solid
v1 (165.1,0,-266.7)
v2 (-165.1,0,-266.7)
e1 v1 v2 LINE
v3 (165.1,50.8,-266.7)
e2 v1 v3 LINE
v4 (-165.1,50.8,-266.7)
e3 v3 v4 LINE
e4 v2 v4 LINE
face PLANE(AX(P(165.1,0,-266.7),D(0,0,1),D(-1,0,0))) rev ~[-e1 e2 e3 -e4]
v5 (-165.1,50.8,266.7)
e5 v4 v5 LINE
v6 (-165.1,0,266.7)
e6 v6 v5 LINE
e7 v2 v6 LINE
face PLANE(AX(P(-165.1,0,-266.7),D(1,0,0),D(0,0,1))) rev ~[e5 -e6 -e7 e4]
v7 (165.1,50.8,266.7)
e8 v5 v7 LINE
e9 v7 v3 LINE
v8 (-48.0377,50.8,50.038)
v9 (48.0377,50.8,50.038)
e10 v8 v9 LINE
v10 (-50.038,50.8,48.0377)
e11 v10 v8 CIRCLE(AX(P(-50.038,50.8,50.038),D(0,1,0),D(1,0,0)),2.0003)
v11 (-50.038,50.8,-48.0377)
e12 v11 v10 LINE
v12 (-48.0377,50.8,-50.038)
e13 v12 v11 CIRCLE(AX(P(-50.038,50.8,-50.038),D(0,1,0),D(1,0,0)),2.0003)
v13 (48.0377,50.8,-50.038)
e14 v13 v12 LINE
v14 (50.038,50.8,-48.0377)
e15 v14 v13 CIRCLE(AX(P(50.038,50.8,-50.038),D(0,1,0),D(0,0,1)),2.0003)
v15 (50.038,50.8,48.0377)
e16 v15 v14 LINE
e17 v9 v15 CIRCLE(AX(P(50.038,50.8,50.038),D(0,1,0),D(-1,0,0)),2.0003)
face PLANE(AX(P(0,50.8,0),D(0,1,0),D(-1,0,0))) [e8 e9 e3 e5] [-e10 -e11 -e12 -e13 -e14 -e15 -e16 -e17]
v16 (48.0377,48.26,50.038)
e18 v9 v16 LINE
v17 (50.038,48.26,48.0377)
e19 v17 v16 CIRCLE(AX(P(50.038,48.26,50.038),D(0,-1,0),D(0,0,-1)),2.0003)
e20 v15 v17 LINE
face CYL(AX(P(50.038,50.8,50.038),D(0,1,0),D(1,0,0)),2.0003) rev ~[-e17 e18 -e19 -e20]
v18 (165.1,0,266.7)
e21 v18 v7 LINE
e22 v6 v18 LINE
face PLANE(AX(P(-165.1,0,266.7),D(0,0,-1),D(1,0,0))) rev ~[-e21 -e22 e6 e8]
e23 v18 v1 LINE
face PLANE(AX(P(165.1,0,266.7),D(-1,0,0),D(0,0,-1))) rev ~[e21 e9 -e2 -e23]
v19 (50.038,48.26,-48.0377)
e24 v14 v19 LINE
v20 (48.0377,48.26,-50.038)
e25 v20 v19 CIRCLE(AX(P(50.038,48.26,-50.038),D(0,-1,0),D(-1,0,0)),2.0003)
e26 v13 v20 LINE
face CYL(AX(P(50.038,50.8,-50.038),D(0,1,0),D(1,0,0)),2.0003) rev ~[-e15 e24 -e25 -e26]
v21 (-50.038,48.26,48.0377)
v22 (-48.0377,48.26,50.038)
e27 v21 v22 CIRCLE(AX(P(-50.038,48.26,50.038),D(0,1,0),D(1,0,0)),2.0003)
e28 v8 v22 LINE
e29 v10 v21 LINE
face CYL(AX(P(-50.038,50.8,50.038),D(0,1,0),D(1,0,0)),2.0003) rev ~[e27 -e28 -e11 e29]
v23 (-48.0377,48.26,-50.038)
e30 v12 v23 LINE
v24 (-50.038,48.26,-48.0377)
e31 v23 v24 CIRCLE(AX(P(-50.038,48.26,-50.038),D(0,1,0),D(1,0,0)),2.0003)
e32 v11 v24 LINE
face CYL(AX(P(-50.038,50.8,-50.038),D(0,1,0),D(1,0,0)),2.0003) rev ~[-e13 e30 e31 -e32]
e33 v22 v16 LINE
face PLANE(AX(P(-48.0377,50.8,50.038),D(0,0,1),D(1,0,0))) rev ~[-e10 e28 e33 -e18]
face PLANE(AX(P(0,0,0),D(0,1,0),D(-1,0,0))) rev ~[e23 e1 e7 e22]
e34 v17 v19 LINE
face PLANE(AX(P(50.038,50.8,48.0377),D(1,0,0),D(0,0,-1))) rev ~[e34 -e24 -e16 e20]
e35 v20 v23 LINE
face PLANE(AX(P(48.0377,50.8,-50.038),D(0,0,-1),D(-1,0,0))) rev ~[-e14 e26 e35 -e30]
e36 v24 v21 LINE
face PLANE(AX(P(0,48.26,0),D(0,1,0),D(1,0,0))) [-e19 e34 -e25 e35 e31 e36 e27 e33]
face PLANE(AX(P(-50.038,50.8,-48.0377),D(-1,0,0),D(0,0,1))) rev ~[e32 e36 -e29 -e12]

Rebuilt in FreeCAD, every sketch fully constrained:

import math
import FreeCAD as App
import Part
import Sketcher

V = App.Vector
Q = App.Units.Quantity


def add_polygon(sketch, points):
    """Adds a closed chain of lines whose ends are joined by coincident constraints."""
    first, n = sketch.GeometryCount, len(points)
    for a, b in zip(points, points[1:] + points[:1]):
        sketch.addGeometry(Part.LineSegment(App.Vector(*a, 0), App.Vector(*b, 0)), False)
    for i in range(n):
        sketch.addConstraint(Sketcher.Constraint("Coincident", first + i, 2, first + (i + 1) % n, 1))

doc = App.newDocument("Part")
body = doc.addObject("PartDesign::Body", "Body")

# Sketch on XZ plane
sketch1 = doc.addObject("Sketcher::SketchObject", "Sketch")
body.addObject(sketch1)
sketch1.AttachmentSupport = (doc.XZ_Plane, [""])
sketch1.MapMode = "FlatFace"
add_polygon(sketch1, [(-165, -267), (-165, 267), (165, 267), (165, -267)])  # lines 0-3
sketch1.addConstraint([
    Sketcher.Constraint("Vertical", 0),
    Sketcher.Constraint("Horizontal", 1),
    Sketcher.Constraint("Vertical", 2),
    Sketcher.Constraint("Horizontal", 3),
    Sketcher.Constraint("Symmetric", 0, 2, 2, 2, -1, 1),
    Sketcher.Constraint("DistanceX", 1, 1, 1, 2, Q("13 in")),
    Sketcher.Constraint("DistanceY", 0, 1, 0, 2, Q("21 in")),
])
pad1 = doc.addObject("PartDesign::Pad", "Pad")
body.addObject(pad1)
pad1.Profile = sketch1
pad1.Length = Q("2 in")
pad1.Reversed = True

# Sketch on XZ plane
sketch2 = doc.addObject("Sketcher::SketchObject", "Sketch001")
body.addObject(sketch2)
sketch2.AttachmentSupport = (doc.XZ_Plane, [""])
sketch2.MapMode = "FlatFace"
sketch2.AttachmentOffset = App.Placement(V(0, 0, -2 * 25.4), App.Rotation())
sketch2.addGeometry([
    Part.ArcOfCircle(Part.Circle(V(-50, 50, 0), V(0, 0, 1), 2), math.radians(0), math.radians(270)),  # 0
    Part.LineSegment(V(-48, 50, 0), V(48, 50, 0)),  # 1
    Part.ArcOfCircle(Part.Circle(V(50, 50, 0), V(0, 0, 1), 2), math.radians(-90), math.radians(180)),  # 2
    Part.LineSegment(V(50, 48, 0), V(50, -48, 0)),  # 3
    Part.ArcOfCircle(Part.Circle(V(50, -50, 0), V(0, 0, 1), 2), math.radians(180), math.radians(450)),  # 4
    Part.LineSegment(V(48, -50, 0), V(-48, -50, 0)),  # 5
    Part.ArcOfCircle(Part.Circle(V(-50, -50, 0), V(0, 0, 1), 2), math.radians(90), math.radians(360)),  # 6
    Part.LineSegment(V(-50, -48, 0), V(-50, 48, 0)),  # 7
], False)
sketch2.addConstraint([
    Sketcher.Constraint("Coincident", 0, 1, 1, 1),
    Sketcher.Constraint("Coincident", 1, 2, 2, 2),
    Sketcher.Constraint("Coincident", 2, 1, 3, 1),
    Sketcher.Constraint("Coincident", 3, 2, 4, 2),
    Sketcher.Constraint("Coincident", 4, 1, 5, 1),
    Sketcher.Constraint("Coincident", 5, 2, 6, 2),
    Sketcher.Constraint("Coincident", 6, 1, 7, 1),
    Sketcher.Constraint("Coincident", 7, 2, 0, 2),
    Sketcher.Constraint("Horizontal", 1),
    Sketcher.Constraint("Vertical", 3),
    Sketcher.Constraint("Horizontal", 5),
    Sketcher.Constraint("Vertical", 7),
    Sketcher.Constraint("Equal", 0, 2),
    Sketcher.Constraint("Equal", 2, 4),
    Sketcher.Constraint("Equal", 4, 6),
    Sketcher.Constraint("Symmetric", 0, 3, 4, 3, -1, 1),
    Sketcher.Constraint("Symmetric", 2, 3, 6, 3, -1, 1),
    Sketcher.Constraint("Symmetric", 0, 3, 2, 3, -2),
    Sketcher.Constraint("Horizontal", 2, 3, 0, 1),
    Sketcher.Constraint("Horizontal", 6, 3, 4, 1),
    Sketcher.Constraint("Vertical", 4, 3, 2, 1),
    Sketcher.Constraint("Vertical", 0, 3, 6, 1),
    Sketcher.Constraint("Equal", 5, 3),
    Sketcher.Constraint("Radius", 0, 2.0003),
    Sketcher.Constraint("DistanceX", 0, 3, 2, 3, Q("3.94 in")),
])
pocket1 = doc.addObject("PartDesign::Pocket", "Pocket")
body.addObject(pocket1)
pocket1.Profile = sketch2
pocket1.Length = Q("0.1 in")
pocket1.Reversed = True

doc.recompute()
